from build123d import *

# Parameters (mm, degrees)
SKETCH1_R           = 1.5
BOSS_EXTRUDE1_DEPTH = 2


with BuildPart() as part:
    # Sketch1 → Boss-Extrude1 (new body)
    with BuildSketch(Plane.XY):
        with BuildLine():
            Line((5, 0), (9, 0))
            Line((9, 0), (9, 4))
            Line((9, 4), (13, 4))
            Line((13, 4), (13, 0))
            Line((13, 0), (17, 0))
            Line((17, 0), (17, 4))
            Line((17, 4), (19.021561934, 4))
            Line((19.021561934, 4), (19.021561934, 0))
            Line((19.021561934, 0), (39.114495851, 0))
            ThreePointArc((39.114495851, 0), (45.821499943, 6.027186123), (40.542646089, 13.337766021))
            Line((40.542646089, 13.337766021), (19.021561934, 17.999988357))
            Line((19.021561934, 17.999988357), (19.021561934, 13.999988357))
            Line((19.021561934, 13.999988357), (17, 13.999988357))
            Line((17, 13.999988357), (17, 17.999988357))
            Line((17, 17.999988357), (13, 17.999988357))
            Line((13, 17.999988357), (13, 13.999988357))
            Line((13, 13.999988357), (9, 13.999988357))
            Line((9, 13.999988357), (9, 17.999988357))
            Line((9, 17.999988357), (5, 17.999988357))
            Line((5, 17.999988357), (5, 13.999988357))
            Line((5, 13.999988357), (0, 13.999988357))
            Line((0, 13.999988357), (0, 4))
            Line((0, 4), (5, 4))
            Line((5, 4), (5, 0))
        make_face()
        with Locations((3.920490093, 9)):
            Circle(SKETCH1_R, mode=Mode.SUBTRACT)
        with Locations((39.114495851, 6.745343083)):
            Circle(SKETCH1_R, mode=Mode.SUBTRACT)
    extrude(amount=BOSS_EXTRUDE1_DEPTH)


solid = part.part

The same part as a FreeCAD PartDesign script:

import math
import FreeCAD as App
import Part
import Sketcher

doc = App.newDocument("Part")
body = doc.addObject("PartDesign::Body", "Body")

sketch1 = doc.addObject("Sketcher::SketchObject", "Sketch")
body.addObject(sketch1)
sketch1.AttachmentSupport = (doc.XY_Plane, [""])
sketch1.MapMode = "FlatFace"
sketch1.addGeometry([
    Part.LineSegment(App.Vector(5, 0, 0), App.Vector(9, 0, 0)),
    Part.LineSegment(App.Vector(9, 0, 0), App.Vector(9, 4, 0)),
    Part.LineSegment(App.Vector(9, 4, 0), App.Vector(13, 4, 0)),
    Part.LineSegment(App.Vector(13, 4, 0), App.Vector(13, 0, 0)),
    Part.LineSegment(App.Vector(13, 0, 0), App.Vector(17, 0, 0)),
    Part.LineSegment(App.Vector(17, 0, 0), App.Vector(17, 4, 0)),
    Part.LineSegment(App.Vector(17, 4, 0), App.Vector(19, 4, 0)),
    Part.LineSegment(App.Vector(19, 4, 0), App.Vector(19, 0, 0)),
    Part.LineSegment(App.Vector(19, 0, 0), App.Vector(39.1, 0, 0)),
    Part.ArcOfCircle(Part.Circle(App.Vector(39.1, 6.7, 0), App.Vector(0, 0, 1), 6.7), math.radians(-90), math.radians(78)),
    Part.LineSegment(App.Vector(40.5, 13.3, 0), App.Vector(19, 18, 0)),
    Part.LineSegment(App.Vector(19, 18, 0), App.Vector(19, 14, 0)),
    Part.LineSegment(App.Vector(19, 14, 0), App.Vector(17, 14, 0)),
    Part.LineSegment(App.Vector(17, 14, 0), App.Vector(17, 18, 0)),
    Part.LineSegment(App.Vector(17, 18, 0), App.Vector(13, 18, 0)),
    Part.LineSegment(App.Vector(13, 18, 0), App.Vector(13, 14, 0)),
    Part.LineSegment(App.Vector(13, 14, 0), App.Vector(9, 14, 0)),
    Part.LineSegment(App.Vector(9, 14, 0), App.Vector(9, 18, 0)),
    Part.LineSegment(App.Vector(9, 18, 0), App.Vector(5, 18, 0)),
    Part.LineSegment(App.Vector(5, 18, 0), App.Vector(5, 14, 0)),
    Part.LineSegment(App.Vector(5, 14, 0), App.Vector(0, 14, 0)),
    Part.LineSegment(App.Vector(0, 14, 0), App.Vector(0, 4, 0)),
    Part.LineSegment(App.Vector(0, 4, 0), App.Vector(5, 4, 0)),
    Part.LineSegment(App.Vector(5, 4, 0), App.Vector(5, 0, 0)),
    Part.Circle(App.Vector(39.1, 6.7, 0), App.Vector(0, 0, 1), 1.5),
    Part.Circle(App.Vector(3.9, 9, 0), App.Vector(0, 0, 1), 1.5),
], False)
sketch1.addConstraint([
    Sketcher.Constraint("Coincident", 0, 2, 1, 1),
    Sketcher.Constraint("Coincident", 1, 2, 2, 1),
    Sketcher.Constraint("Coincident", 2, 2, 3, 1),
    Sketcher.Constraint("Coincident", 3, 2, 4, 1),
    Sketcher.Constraint("Coincident", 4, 2, 5, 1),
    Sketcher.Constraint("Coincident", 5, 2, 6, 1),
    Sketcher.Constraint("Coincident", 6, 2, 7, 1),
    Sketcher.Constraint("Coincident", 7, 2, 8, 1),
    Sketcher.Constraint("Tangent", 8, 2, 9, 1),
    Sketcher.Constraint("Tangent", 9, 2, 10, 1),
    Sketcher.Constraint("Coincident", 10, 2, 11, 1),
    Sketcher.Constraint("Coincident", 11, 2, 12, 1),
    Sketcher.Constraint("Coincident", 12, 2, 13, 1),
    Sketcher.Constraint("Coincident", 13, 2, 14, 1),
    Sketcher.Constraint("Coincident", 14, 2, 15, 1),
    Sketcher.Constraint("Coincident", 15, 2, 16, 1),
    Sketcher.Constraint("Coincident", 16, 2, 17, 1),
    Sketcher.Constraint("Coincident", 17, 2, 18, 1),
    Sketcher.Constraint("Coincident", 18, 2, 19, 1),
    Sketcher.Constraint("Coincident", 19, 2, 20, 1),
    Sketcher.Constraint("Coincident", 20, 2, 21, 1),
    Sketcher.Constraint("Coincident", 21, 2, 22, 1),
    Sketcher.Constraint("Coincident", 22, 2, 23, 1),
    Sketcher.Constraint("Coincident", 23, 2, 0, 1),
    Sketcher.Constraint("Horizontal", 0),
    Sketcher.Constraint("Vertical", 1),
    Sketcher.Constraint("Horizontal", 2),
    Sketcher.Constraint("Vertical", 3),
    Sketcher.Constraint("Horizontal", 4),
    Sketcher.Constraint("Vertical", 5),
    Sketcher.Constraint("Horizontal", 6),
    Sketcher.Constraint("Vertical", 7),
    Sketcher.Constraint("Horizontal", 8),
    Sketcher.Constraint("Vertical", 11),
    Sketcher.Constraint("Horizontal", 12),
    Sketcher.Constraint("Vertical", 13),
    Sketcher.Constraint("Horizontal", 14),
    Sketcher.Constraint("Vertical", 15),
    Sketcher.Constraint("Horizontal", 16),
    Sketcher.Constraint("Vertical", 17),
    Sketcher.Constraint("Horizontal", 18),
    Sketcher.Constraint("Vertical", 19),
    Sketcher.Constraint("Horizontal", 20),
    Sketcher.Constraint("Vertical", 21),
    Sketcher.Constraint("Horizontal", 22),
    Sketcher.Constraint("Vertical", 23),
    Sketcher.Constraint("Coincident", 24, 3, 9, 3),
    Sketcher.Constraint("Equal", 24, 25),
    Sketcher.Constraint("PointOnObject", 0, 2, -1),
    Sketcher.Constraint("PointOnObject", 3, 2, -1),
    Sketcher.Constraint("PointOnObject", 7, 2, -1),
    Sketcher.Constraint("PointOnObject", 20, 2, -2),
    Sketcher.Constraint("Horizontal", 2, 2, 5, 2),
    Sketcher.Constraint("Horizontal", 10, 2, 13, 2),
    Sketcher.Constraint("Horizontal", 12, 2, 15, 2),
    Sketcher.Constraint("Horizontal", 14, 2, 17, 2),
    Sketcher.Constraint("Horizontal", 16, 2, 19, 2),
    Sketcher.Constraint("Horizontal", 6, 2, 21, 2),
    Sketcher.Constraint("Vertical", 7, 2, 10, 2),
    Sketcher.Constraint("Vertical", 5, 2, 12, 2),
    Sketcher.Constraint("Vertical", 3, 2, 14, 2),
    Sketcher.Constraint("Vertical", 1, 2, 16, 2),
    Sketcher.Constraint("Vertical", 19, 2, 22, 2),
    Sketcher.Constraint("Equal", 0, 2),
    Sketcher.Constraint("Equal", 2, 4),
    Sketcher.Constraint("Equal", 18, 1),
    Sketcher.Constraint("Equal", 7, 11),
    Sketcher.Constraint("Diameter", 24, 3.0),
    Sketcher.Constraint("DistanceX", 0, 1, 0, 2, 4.0),
    Sketcher.Constraint("DistanceX", 20, 2, 20, 1, 5.0),
    Sketcher.Constraint("DistanceY", -1, 1, 25, 3, 9.0),
    Sketcher.Constraint("Radius", 9, 6.745343),
    Sketcher.Constraint("DistanceX", 6, 1, 6, 2, 2.021562),
    Sketcher.Constraint("DistanceY", 21, 2, 21, 1, 9.999988),
    Sketcher.Constraint("DistanceX", 8, 1, 8, 2, 20.092934),
    Sketcher.Constraint("DistanceX", -1, 1, 25, 3, 3.92049),
])
pad1 = doc.addObject("PartDesign::Pad", "Pad")
body.addObject(pad1)
pad1.Profile = sketch1
pad1.Length = 2

doc.recompute()
